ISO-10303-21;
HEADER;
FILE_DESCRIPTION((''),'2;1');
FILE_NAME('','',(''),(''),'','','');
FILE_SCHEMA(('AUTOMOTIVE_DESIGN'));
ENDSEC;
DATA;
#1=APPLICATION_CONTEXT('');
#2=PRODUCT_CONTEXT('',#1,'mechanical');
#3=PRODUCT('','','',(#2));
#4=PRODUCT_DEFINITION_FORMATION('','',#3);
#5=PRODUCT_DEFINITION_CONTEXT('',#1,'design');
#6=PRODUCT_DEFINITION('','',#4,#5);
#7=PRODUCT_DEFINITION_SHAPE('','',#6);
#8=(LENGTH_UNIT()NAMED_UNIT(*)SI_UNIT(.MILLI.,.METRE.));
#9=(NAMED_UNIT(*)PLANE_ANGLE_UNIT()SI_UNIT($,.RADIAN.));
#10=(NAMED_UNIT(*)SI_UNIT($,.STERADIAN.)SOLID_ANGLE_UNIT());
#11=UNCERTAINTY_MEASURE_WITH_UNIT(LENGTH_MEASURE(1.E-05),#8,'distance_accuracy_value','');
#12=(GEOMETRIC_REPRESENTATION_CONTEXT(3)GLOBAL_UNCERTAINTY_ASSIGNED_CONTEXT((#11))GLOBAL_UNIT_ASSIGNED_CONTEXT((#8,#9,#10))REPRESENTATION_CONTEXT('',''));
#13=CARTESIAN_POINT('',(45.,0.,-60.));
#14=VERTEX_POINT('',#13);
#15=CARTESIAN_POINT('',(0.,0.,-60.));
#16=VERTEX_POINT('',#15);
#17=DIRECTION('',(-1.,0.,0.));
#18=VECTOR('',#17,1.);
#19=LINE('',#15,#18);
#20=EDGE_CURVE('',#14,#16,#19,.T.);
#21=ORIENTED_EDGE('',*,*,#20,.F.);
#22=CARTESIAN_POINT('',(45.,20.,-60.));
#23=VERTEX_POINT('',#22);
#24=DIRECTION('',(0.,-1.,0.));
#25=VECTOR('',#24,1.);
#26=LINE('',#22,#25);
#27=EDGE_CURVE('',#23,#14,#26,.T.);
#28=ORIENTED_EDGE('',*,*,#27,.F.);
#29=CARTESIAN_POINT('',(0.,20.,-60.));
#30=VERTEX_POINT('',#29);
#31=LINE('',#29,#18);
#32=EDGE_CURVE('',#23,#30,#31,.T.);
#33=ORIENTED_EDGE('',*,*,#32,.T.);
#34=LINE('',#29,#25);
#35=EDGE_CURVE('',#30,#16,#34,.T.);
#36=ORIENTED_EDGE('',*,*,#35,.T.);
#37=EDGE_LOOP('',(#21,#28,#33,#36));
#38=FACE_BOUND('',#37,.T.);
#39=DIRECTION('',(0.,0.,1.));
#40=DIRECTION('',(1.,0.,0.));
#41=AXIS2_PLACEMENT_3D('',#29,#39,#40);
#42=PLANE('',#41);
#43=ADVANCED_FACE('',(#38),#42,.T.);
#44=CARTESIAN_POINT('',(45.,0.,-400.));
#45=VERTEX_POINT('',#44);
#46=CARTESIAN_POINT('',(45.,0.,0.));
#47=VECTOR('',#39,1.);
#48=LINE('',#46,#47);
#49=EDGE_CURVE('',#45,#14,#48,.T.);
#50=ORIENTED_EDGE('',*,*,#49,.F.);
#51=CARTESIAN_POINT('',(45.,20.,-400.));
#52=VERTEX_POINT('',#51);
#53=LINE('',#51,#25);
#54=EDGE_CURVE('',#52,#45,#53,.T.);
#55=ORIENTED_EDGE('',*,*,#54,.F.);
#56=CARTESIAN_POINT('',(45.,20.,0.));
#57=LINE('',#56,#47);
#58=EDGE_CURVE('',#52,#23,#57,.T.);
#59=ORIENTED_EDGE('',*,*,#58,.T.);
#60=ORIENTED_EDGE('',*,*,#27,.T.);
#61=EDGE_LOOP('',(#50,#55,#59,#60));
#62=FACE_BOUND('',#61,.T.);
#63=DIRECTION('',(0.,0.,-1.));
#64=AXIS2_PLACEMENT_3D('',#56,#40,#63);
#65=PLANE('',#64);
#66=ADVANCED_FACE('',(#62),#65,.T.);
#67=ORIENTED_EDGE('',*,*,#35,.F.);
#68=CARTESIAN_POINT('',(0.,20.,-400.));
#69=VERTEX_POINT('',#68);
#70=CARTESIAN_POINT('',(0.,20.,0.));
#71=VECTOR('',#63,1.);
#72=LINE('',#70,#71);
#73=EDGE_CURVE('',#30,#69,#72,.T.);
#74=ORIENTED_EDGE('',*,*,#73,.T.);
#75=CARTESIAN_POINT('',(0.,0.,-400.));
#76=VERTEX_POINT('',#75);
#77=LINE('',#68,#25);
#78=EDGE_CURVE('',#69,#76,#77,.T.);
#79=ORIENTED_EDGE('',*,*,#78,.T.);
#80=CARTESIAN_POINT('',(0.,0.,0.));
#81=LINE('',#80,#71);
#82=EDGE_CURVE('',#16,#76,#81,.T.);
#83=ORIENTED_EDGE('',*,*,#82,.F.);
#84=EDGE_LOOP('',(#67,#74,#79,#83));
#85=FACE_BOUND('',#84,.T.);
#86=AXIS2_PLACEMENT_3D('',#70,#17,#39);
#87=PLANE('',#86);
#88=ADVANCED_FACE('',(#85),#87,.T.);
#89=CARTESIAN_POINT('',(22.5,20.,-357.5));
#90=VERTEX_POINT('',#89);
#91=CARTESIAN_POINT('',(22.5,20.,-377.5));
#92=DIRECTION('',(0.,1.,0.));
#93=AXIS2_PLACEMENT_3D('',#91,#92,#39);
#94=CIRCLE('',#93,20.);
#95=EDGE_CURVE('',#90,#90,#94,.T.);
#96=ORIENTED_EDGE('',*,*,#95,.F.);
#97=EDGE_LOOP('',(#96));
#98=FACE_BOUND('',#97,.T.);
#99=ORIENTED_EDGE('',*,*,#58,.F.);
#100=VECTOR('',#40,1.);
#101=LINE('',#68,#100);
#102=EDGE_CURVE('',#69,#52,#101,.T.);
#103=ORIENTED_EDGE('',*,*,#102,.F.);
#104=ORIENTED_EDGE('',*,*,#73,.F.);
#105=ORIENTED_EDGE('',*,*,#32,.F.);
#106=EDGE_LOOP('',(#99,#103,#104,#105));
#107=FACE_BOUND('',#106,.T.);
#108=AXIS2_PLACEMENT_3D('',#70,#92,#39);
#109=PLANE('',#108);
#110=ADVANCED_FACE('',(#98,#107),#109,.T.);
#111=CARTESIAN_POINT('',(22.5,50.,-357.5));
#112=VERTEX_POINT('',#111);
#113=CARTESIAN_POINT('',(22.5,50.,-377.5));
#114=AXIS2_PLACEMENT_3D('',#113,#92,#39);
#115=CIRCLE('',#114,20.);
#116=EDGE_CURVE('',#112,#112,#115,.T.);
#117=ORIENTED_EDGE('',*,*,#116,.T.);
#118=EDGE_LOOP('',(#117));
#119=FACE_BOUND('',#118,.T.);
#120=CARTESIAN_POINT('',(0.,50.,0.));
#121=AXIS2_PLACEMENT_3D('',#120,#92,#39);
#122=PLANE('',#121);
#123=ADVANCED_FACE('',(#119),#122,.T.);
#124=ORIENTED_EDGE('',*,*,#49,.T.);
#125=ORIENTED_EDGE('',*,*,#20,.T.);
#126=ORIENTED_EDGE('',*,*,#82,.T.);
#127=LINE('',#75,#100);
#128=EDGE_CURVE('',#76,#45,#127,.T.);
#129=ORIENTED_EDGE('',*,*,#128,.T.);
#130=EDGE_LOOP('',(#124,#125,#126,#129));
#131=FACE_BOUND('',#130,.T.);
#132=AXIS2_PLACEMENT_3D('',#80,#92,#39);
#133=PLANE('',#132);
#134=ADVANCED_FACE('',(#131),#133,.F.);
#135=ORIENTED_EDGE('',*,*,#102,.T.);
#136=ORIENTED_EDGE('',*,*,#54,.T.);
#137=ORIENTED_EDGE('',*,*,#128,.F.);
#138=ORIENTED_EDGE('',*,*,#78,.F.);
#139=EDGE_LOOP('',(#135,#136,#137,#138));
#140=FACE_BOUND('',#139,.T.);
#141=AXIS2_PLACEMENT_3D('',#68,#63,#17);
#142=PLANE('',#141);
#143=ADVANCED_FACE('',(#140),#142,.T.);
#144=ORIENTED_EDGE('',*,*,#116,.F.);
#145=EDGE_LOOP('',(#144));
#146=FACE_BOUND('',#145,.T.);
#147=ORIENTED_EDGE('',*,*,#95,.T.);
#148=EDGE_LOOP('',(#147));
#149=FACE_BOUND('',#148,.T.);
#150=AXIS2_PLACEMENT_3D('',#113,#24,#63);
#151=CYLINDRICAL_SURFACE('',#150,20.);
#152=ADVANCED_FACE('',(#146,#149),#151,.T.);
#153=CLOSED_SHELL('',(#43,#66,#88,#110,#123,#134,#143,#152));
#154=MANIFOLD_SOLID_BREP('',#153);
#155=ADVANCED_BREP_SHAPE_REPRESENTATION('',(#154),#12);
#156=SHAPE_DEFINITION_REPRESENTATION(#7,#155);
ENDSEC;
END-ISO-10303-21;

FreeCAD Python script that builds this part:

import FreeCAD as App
import Part
import Sketcher
Q = App.Units.Quantity


def add_polygon(sketch, points):
    """Adds a closed chain of lines whose ends are joined by coincident constraints."""
    first, n = sketch.GeometryCount, len(points)
    for a, b in zip(points, points[1:] + points[:1]):
        sketch.addGeometry(Part.LineSegment(App.Vector(*a, 0), App.Vector(*b, 0)), False)
    for i in range(n):
        sketch.addConstraint(Sketcher.Constraint("Coincident", first + i, 2, first + (i + 1) % n, 1))

doc = App.newDocument("Part")
body = doc.addObject("PartDesign::Body", "Body")

sketch1 = body.newObject("Sketcher::SketchObject", "Sketch")
sketch1.AttachmentSupport = (doc.getObject("XZ_Plane"), [""])
sketch1.MapMode = "FlatFace"
add_polygon(sketch1, [(0, -400), (0, -60), (45, -60), (45, -400)])
sketch1.addConstraint([
    Sketcher.Constraint("Vertical", 0),
    Sketcher.Constraint("Horizontal", 1),
    Sketcher.Constraint("Vertical", 2),
    Sketcher.Constraint("Horizontal", 3),
    Sketcher.Constraint("PointOnObject", 0, 2, -2),
    Sketcher.Constraint("DistanceX", 1, 1, 1, 2, Q("45 mm")),
    Sketcher.Constraint("DistanceY", 0, 1, 0, 2, Q("340 mm")),
    Sketcher.Constraint("DistanceY", 0, 2, -1, 1, Q("60 mm")),
])
pad1 = body.newObject("PartDesign::Pad", "Pad")
pad1.Profile = sketch1
pad1.Length = 20
pad1.Reversed = True

sketch2 = body.newObject("Sketcher::SketchObject", "Sketch001")
sketch2.AttachmentSupport = (doc.getObject("XZ_Plane"), [""])
sketch2.MapMode = "FlatFace"
sketch2.AttachmentOffset = App.Placement(App.Vector(0, 0, -20), App.Rotation())
sketch2.addGeometry(Part.Circle(App.Vector(22, -378, 0), App.Vector(0, 0, 1), 20), False)
sketch2.addConstraint([
    Sketcher.Constraint("Diameter", 0, Q("40 mm")),
    Sketcher.Constraint("DistanceX", -1, 1, 0, 3, Q("22.5 mm")),
    Sketcher.Constraint("DistanceY", 0, 3, -1, 1, Q("377.5 mm")),
])
pad2 = body.newObject("PartDesign::Pad", "Pad001")
pad2.Profile = sketch2
pad2.Length = 30
pad2.Reversed = True

doc.recompute()
